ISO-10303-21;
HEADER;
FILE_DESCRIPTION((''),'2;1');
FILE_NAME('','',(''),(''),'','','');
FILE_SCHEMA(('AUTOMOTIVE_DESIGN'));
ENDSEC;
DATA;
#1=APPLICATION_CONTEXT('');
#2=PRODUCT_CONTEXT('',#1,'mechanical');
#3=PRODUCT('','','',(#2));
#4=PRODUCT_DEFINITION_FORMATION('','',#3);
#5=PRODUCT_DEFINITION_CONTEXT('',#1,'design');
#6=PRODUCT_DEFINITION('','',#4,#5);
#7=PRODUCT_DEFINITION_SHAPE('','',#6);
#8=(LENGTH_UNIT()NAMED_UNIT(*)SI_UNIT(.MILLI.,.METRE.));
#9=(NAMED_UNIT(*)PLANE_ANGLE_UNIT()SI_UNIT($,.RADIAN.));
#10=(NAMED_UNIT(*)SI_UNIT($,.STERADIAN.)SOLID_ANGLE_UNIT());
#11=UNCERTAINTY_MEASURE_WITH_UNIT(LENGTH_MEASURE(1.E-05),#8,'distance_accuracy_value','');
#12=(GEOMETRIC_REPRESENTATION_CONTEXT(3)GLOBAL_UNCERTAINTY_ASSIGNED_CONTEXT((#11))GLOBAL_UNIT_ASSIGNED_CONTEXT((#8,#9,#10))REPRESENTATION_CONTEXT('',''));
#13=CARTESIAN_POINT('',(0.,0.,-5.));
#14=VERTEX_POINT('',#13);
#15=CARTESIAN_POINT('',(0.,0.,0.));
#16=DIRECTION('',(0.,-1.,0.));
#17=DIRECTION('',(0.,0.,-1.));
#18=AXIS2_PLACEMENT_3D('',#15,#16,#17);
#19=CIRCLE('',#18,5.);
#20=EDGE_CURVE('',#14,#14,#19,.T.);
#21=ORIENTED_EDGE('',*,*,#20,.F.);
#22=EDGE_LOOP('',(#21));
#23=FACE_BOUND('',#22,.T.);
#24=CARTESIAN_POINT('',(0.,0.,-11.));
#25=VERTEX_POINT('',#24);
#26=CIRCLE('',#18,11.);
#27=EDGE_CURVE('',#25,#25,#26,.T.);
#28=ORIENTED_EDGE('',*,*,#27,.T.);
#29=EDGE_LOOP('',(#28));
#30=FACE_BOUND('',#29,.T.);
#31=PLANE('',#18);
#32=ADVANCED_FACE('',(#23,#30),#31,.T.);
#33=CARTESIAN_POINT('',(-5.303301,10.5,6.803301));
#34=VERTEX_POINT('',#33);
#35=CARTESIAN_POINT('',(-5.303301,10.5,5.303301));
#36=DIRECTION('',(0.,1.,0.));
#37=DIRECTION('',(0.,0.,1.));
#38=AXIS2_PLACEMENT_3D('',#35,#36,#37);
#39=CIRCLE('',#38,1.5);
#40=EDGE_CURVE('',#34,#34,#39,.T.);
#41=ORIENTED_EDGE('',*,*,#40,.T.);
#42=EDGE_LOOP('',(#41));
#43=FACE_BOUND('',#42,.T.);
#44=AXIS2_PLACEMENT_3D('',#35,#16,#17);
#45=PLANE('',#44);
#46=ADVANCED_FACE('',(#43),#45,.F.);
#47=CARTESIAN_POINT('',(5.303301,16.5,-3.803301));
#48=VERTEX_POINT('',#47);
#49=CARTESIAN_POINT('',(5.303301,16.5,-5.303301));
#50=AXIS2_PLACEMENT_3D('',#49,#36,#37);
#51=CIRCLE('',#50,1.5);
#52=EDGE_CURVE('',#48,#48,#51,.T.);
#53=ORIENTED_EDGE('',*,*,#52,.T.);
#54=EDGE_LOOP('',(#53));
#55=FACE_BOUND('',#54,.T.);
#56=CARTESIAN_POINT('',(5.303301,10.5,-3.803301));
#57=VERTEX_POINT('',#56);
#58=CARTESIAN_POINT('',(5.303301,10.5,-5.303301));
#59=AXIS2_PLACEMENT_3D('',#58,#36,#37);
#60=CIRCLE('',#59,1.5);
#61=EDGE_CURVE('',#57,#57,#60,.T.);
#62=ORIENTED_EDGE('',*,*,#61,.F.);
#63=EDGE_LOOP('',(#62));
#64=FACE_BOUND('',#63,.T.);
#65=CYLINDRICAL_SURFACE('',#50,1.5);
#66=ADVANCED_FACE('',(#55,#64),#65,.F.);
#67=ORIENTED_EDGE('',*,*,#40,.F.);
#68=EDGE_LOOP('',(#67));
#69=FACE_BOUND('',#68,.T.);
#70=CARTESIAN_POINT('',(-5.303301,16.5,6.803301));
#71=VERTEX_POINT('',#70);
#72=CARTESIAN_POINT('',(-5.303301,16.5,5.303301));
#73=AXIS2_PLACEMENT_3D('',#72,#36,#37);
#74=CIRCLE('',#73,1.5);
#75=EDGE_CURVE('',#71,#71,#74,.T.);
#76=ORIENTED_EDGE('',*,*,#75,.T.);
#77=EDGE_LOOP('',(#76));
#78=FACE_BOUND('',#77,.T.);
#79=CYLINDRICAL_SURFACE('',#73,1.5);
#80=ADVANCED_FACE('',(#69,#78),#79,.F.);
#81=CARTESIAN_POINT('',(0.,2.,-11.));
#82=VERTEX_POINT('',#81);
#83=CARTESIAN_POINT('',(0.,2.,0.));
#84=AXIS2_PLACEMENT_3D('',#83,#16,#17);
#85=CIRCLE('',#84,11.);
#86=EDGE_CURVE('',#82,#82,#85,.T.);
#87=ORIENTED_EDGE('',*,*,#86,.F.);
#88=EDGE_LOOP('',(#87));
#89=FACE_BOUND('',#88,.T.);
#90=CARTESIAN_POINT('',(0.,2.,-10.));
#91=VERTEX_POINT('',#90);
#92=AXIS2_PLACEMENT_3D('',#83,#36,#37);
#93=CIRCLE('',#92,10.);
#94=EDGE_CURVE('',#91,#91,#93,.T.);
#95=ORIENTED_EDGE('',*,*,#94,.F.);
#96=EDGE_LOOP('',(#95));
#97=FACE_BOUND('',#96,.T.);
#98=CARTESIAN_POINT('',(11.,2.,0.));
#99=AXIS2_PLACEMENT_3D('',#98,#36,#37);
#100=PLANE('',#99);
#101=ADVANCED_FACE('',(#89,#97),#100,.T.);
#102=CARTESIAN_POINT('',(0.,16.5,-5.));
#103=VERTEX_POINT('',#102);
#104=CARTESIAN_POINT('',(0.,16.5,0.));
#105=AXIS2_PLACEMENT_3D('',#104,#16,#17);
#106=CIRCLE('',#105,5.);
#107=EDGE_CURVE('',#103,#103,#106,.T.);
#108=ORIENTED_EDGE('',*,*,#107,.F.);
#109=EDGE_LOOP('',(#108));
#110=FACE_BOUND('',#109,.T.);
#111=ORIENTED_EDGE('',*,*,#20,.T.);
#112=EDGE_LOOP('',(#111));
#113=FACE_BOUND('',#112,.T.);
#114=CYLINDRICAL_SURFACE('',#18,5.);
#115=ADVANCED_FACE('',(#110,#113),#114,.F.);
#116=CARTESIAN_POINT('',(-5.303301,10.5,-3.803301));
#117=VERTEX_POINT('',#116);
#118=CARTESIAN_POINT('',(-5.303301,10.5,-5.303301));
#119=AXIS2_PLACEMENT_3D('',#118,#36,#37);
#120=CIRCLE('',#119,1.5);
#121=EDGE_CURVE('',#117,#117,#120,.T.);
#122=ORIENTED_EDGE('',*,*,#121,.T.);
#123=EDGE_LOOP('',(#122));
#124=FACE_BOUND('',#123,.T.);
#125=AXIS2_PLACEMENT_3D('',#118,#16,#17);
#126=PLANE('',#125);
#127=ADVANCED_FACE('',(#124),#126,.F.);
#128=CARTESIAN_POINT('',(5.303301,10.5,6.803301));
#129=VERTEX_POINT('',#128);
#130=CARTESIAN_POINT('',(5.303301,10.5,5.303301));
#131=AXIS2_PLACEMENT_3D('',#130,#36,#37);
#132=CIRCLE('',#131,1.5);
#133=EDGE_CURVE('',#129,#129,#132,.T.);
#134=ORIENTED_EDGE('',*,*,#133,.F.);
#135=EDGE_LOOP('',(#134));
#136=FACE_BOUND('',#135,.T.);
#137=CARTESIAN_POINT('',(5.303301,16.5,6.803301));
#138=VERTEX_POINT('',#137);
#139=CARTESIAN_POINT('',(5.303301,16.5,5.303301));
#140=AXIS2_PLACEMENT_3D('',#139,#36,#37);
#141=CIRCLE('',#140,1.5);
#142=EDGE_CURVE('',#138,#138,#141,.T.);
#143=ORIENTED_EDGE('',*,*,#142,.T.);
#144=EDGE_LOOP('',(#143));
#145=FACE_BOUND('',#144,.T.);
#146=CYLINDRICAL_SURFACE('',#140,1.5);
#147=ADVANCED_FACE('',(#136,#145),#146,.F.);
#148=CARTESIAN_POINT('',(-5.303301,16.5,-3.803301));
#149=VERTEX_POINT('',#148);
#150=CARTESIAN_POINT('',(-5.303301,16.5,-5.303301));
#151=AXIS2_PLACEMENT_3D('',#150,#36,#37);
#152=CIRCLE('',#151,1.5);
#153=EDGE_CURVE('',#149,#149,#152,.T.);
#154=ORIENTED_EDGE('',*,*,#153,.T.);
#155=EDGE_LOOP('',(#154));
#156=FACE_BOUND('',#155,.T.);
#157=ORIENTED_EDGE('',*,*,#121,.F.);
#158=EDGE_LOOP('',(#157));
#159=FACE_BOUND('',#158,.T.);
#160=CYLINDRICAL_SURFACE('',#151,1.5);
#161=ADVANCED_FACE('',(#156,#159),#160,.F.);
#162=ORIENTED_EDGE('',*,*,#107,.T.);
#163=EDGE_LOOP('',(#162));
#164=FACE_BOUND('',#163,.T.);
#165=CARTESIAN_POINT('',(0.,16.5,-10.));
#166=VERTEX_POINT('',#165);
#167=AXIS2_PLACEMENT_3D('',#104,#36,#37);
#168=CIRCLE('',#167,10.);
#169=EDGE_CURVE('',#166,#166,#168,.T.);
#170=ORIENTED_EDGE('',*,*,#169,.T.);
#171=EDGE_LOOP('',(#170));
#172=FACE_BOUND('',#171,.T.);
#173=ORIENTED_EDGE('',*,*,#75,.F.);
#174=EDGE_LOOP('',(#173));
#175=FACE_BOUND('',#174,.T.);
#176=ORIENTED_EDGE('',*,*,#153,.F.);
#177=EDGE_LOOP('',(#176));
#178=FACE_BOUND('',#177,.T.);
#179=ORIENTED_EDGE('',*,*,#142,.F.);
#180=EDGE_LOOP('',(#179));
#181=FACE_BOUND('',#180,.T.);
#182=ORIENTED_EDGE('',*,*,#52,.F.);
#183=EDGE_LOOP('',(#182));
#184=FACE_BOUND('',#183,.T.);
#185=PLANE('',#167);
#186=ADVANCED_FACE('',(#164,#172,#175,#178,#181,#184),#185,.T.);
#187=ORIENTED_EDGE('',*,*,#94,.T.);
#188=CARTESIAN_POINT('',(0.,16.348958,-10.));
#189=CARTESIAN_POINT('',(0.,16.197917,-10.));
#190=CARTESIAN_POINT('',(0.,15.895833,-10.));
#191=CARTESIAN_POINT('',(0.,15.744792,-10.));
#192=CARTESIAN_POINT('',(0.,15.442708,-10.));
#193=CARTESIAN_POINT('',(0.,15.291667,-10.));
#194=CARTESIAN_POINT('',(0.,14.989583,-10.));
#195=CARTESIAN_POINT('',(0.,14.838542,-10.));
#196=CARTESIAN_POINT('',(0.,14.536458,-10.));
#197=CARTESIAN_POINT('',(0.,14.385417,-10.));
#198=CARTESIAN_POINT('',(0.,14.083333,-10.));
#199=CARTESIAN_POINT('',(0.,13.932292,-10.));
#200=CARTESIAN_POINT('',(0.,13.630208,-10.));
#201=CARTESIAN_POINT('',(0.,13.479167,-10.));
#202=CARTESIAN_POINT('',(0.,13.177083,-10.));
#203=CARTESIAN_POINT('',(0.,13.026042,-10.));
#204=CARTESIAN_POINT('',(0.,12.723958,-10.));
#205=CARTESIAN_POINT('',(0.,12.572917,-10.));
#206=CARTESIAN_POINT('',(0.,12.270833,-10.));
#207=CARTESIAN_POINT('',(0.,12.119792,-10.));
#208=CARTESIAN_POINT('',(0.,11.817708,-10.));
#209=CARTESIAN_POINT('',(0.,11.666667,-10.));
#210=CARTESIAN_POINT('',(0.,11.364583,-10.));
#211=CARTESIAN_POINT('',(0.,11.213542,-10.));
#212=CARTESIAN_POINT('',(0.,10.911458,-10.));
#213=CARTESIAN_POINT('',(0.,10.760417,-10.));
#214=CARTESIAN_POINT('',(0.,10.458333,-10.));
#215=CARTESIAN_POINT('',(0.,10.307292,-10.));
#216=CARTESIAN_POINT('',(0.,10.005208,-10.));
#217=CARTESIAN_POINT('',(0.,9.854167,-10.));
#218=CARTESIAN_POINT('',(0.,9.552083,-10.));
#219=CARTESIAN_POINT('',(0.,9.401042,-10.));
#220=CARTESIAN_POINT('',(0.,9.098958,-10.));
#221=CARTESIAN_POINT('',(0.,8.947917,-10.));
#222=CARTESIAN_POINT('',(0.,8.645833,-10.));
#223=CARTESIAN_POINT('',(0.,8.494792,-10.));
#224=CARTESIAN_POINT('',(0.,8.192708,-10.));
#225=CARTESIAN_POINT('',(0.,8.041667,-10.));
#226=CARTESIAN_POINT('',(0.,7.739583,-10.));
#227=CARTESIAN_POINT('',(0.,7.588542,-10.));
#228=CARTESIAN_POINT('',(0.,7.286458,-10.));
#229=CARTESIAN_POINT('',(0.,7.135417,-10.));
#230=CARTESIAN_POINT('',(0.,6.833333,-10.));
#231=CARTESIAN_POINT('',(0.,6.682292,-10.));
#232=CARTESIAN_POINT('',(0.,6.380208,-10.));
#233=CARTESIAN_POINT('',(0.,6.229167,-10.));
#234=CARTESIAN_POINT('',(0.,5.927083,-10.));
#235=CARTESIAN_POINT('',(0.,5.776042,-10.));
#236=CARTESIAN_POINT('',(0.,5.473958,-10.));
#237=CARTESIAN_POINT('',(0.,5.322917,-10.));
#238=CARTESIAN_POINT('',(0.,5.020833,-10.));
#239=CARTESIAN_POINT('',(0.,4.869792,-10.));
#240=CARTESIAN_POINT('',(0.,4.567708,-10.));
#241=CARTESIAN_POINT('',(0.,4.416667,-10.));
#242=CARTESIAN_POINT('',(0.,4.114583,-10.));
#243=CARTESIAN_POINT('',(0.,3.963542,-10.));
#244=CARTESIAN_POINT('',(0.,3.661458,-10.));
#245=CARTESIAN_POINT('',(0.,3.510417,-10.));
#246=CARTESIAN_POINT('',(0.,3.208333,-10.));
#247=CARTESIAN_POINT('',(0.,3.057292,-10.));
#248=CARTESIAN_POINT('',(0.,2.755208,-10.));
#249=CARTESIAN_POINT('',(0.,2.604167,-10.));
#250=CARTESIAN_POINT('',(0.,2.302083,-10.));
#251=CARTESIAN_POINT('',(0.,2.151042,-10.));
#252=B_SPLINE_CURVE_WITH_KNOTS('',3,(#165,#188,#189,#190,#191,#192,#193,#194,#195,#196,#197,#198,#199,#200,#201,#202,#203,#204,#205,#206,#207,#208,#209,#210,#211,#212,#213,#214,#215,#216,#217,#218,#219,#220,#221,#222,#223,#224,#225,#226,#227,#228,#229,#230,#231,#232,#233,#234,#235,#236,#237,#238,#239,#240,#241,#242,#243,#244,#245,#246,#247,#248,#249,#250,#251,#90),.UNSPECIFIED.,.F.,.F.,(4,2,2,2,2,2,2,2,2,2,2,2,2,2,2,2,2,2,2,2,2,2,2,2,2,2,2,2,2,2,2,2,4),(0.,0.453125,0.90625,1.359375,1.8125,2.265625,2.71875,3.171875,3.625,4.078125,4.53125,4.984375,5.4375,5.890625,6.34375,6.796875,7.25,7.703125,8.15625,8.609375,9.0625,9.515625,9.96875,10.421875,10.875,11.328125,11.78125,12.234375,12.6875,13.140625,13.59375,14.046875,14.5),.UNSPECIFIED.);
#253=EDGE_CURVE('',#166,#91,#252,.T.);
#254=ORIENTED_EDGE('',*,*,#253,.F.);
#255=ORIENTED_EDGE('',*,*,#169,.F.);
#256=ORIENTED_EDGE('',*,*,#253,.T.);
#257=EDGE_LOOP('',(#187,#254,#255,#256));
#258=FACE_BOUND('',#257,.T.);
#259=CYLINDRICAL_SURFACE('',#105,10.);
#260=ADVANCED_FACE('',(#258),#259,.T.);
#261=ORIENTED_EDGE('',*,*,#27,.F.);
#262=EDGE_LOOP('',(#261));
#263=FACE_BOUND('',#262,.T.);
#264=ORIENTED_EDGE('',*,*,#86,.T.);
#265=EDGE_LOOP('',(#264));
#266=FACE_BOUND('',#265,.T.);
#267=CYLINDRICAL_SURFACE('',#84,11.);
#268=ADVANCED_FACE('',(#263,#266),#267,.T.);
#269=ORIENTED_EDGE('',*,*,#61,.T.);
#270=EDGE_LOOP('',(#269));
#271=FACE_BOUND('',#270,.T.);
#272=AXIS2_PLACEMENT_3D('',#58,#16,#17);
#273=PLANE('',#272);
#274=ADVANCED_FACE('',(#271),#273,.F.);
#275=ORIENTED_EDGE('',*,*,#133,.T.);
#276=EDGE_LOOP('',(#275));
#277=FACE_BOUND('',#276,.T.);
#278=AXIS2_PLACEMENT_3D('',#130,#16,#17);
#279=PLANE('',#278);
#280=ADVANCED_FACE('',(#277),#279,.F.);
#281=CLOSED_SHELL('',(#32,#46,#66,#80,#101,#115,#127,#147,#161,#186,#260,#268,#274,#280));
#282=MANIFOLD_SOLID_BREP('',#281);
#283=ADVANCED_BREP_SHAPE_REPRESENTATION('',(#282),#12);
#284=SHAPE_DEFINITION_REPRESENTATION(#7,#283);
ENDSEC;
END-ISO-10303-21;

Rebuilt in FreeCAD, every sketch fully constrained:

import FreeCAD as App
import Part
import Sketcher

V = App.Vector
Q = App.Units.Quantity

doc = App.newDocument("Part")
body = doc.addObject("PartDesign::Body", "Body")

# Sketch on XY plane
sketch1 = body.newObject("Sketcher::SketchObject", "Sketch")
sketch1.AttachmentSupport = (doc.getObject("XY_Plane"), [""])
sketch1.MapMode = "FlatFace"
sketch1.addGeometry([
    Part.LineSegment(V(0, 2, 0), V(0, 0, 0)),
    Part.LineSegment(V(0, 0, 0), V(11, 0, 0)),
    Part.LineSegment(V(11, 0, 0), V(11, 2, 0)),
    Part.LineSegment(V(11, 2, 0), V(0, 2, 0)),
], False)
sketch1.addConstraint([
    Sketcher.Constraint("Coincident", 0, 2, 1, 1),
    Sketcher.Constraint("Coincident", 1, 2, 2, 1),
    Sketcher.Constraint("Coincident", 2, 2, 3, 1),
    Sketcher.Constraint("Coincident", 3, 2, 0, 1),
    Sketcher.Constraint("Vertical", 0),
    Sketcher.Constraint("Horizontal", 1),
    Sketcher.Constraint("Vertical", 2),
    Sketcher.Constraint("Horizontal", 3),
    Sketcher.Constraint("Coincident", 0, 2, -1, 1),
    Sketcher.Constraint("DistanceX", 1, 1, 1, 2, Q("11 mm")),
    Sketcher.Constraint("DistanceY", 0, 2, 0, 1, Q("2 mm")),
])
revolution = body.newObject("PartDesign::Revolution", "Revolution")
revolution.Profile = sketch1
revolution.ReferenceAxis = (sketch1, ["V_Axis"])
revolution.Angle = 360

# Sketch on XZ plane
sketch2 = body.newObject("Sketcher::SketchObject", "Sketch001")
sketch2.AttachmentSupport = (doc.getObject("XZ_Plane"), [""])
sketch2.MapMode = "FlatFace"
sketch2.AttachmentOffset = App.Placement(V(0, 0, -2), App.Rotation())
sketch2.addGeometry(Part.Circle(V(0, 0, 0), V(0, 0, 1), 10), False)
sketch2.addConstraint([
    Sketcher.Constraint("Coincident", 0, 3, -1, 1),
    Sketcher.Constraint("Diameter", 0, Q("20 mm")),
])
pad1 = body.newObject("PartDesign::Pad", "Pad")
pad1.Profile = sketch2
pad1.Length = 14.5
pad1.Reversed = True

# Sketch on XZ plane
sketch3 = body.newObject("Sketcher::SketchObject", "Sketch002")
sketch3.AttachmentSupport = (doc.getObject("XZ_Plane"), [""])
sketch3.MapMode = "FlatFace"
sketch3.AttachmentOffset = App.Placement(V(0, 0, -16.5), App.Rotation())
sketch3.addGeometry([
    Part.Circle(V(5.3, -5.3, 0), V(0, 0, 1), 1.5),
    Part.Circle(V(5.3, 5.3, 0), V(0, 0, 1), 1.5),
    Part.Circle(V(-5.3, 5.3, 0), V(0, 0, 1), 1.5),
    Part.Circle(V(-5.3, -5.3, 0), V(0, 0, 1), 1.5),
], False)
sketch3.addConstraint([
    Sketcher.Constraint("Equal", 0, 1),
    Sketcher.Constraint("Equal", 1, 2),
    Sketcher.Constraint("Equal", 2, 3),
    Sketcher.Constraint("Symmetric", 0, 3, 2, 3, -1, 1),
    Sketcher.Constraint("Symmetric", 1, 3, 3, 3, -1, 1),
    Sketcher.Constraint("Symmetric", 1, 3, 2, 3, -2),
    Sketcher.Constraint("Diameter", 0, Q("3 mm")),
    Sketcher.Constraint("DistanceX", -1, 1, 0, 3, Q("5.303301 mm")),
    Sketcher.Constraint("DistanceY", 0, 3, -1, 1, Q("5.303301 mm")),
])
doc.recompute()
hole = body.newObject("PartDesign::Hole", "Hole")
hole.Profile = sketch3
hole.ThreadType = "None"
hole.Diameter = 3
hole.DepthType = "Dimension"
hole.Depth = 6
hole.DrillPoint = "Flat"
hole.Reversed = True

# Sketch on XZ plane
sketch4 = body.newObject("Sketcher::SketchObject", "Sketch003")
sketch4.AttachmentSupport = (doc.getObject("XZ_Plane"), [""])
sketch4.MapMode = "FlatFace"
sketch4.addGeometry(Part.Circle(V(0, 0, 0), V(0, 0, 1), 5), False)
sketch4.addConstraint([
    Sketcher.Constraint("Coincident", 0, 3, -1, 1),
    Sketcher.Constraint("Diameter", 0, Q("10 mm")),
])
doc.recompute()
hole2 = body.newObject("PartDesign::Hole", "Hole001")
hole2.Profile = sketch4
hole2.ThreadType = "None"
hole2.Diameter = 10
hole2.DepthType = "ThroughAll"

doc.recompute()
